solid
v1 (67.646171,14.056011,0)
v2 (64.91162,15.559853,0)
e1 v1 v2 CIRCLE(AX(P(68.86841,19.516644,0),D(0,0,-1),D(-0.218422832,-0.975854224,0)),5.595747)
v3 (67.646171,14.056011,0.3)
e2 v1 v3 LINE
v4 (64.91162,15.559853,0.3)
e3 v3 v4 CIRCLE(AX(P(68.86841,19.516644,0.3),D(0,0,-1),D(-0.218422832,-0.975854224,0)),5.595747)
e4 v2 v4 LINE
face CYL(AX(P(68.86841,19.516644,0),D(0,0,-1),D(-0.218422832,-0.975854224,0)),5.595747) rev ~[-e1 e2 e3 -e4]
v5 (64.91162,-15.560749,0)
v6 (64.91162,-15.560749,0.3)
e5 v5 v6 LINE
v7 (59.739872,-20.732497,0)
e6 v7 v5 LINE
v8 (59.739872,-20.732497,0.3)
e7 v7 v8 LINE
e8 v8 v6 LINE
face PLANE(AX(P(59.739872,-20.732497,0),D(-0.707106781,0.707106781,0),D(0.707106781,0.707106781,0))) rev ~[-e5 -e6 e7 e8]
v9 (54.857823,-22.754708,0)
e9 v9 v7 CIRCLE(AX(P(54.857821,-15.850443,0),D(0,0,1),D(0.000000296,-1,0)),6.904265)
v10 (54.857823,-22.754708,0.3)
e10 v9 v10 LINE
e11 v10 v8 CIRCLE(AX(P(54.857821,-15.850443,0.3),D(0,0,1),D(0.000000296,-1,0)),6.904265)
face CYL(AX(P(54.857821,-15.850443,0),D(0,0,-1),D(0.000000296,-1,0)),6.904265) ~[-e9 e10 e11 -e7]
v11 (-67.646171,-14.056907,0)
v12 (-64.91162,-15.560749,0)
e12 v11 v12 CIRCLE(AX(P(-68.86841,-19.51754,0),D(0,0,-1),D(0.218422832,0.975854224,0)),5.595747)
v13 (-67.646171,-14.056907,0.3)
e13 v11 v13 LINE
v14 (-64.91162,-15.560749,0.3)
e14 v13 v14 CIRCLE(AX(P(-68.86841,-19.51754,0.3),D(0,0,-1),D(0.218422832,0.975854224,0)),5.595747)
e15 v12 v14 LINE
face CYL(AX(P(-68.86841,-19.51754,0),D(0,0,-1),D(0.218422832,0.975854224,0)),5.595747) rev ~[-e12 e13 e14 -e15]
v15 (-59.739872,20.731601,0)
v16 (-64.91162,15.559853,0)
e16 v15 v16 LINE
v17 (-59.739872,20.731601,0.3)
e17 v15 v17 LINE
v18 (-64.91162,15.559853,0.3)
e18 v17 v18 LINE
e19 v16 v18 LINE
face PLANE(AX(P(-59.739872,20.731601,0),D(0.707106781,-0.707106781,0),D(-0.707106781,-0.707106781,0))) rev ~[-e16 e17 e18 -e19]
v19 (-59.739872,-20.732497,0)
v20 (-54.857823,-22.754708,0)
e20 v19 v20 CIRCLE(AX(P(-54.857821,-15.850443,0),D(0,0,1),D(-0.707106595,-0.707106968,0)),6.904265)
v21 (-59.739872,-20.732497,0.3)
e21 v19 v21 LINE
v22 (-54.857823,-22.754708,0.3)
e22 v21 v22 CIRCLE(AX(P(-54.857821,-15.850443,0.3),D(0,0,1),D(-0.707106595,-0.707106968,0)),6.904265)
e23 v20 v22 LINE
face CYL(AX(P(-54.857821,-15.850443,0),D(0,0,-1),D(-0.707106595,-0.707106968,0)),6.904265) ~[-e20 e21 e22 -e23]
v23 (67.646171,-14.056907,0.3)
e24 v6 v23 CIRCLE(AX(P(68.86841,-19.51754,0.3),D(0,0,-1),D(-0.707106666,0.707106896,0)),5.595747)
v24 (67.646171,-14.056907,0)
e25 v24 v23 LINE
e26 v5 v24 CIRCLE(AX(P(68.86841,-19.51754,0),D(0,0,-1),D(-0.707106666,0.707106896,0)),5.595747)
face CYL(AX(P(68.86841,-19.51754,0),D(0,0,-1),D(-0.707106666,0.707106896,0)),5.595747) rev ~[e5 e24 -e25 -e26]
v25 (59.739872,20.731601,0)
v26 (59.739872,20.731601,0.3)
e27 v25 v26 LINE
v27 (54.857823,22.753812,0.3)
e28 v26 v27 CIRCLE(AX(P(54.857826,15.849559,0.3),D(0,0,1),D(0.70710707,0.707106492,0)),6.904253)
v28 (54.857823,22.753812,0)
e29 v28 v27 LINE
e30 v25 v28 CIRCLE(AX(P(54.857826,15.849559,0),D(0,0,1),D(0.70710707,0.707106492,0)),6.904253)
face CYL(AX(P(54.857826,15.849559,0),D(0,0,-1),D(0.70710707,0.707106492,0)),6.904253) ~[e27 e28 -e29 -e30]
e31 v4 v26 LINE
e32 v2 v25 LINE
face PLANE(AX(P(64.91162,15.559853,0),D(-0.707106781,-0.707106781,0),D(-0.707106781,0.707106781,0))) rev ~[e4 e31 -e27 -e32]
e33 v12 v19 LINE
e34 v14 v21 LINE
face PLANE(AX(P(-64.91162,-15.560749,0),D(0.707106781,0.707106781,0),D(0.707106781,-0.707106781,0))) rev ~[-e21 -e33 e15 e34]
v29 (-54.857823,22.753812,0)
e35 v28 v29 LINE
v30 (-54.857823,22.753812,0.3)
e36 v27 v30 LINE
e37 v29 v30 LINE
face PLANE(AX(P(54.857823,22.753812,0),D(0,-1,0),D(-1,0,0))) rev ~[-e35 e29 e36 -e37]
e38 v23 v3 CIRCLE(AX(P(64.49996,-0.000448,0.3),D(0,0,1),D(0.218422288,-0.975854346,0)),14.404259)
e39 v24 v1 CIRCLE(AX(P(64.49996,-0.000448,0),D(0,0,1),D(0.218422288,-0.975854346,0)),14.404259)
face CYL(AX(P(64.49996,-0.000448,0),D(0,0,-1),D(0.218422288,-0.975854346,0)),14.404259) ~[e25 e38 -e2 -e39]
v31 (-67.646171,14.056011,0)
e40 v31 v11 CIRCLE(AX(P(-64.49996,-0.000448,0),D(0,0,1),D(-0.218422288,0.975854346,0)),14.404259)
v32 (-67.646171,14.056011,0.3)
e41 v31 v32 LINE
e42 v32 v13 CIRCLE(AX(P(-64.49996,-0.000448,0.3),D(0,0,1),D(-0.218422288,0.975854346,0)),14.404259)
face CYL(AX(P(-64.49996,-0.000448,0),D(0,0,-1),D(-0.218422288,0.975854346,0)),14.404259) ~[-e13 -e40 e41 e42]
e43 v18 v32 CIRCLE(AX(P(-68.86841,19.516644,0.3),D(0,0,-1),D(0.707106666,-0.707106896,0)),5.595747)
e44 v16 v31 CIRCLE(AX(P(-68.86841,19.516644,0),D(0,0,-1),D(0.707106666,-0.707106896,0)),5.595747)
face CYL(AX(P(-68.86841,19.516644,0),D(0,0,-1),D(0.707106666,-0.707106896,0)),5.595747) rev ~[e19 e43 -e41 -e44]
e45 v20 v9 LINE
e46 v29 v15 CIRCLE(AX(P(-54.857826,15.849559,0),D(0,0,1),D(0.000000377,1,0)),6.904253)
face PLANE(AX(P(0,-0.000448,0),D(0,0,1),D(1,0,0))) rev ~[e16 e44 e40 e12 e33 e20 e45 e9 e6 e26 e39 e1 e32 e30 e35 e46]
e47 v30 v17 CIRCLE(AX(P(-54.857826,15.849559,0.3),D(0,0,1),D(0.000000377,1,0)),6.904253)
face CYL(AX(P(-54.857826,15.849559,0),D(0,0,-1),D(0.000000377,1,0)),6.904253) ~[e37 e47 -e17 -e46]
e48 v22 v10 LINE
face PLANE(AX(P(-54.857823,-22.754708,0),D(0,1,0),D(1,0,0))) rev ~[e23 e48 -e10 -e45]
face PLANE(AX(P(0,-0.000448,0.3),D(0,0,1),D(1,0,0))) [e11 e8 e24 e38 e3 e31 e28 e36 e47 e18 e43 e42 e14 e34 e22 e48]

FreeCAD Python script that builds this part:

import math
import FreeCAD as App
import Part
import Sketcher

doc = App.newDocument("Part")
params = doc.addObject("Spreadsheet::Sheet", "Params")
for row, (alias, value) in enumerate([
    ("pad1_length", "0.3 mm"),
], start=1):
    params.set(f"A{row}", alias)
    params.set(f"B{row}", "=" + value)
    params.setAlias(f"B{row}", alias)

body = doc.addObject("PartDesign::Body", "Body")

# Sketch on XY plane
sketch1 = body.newObject("Sketcher::SketchObject", "Sketch")
sketch1.AttachmentSupport = (doc.getObject("XY_Plane"), [""])
sketch1.MapMode = "FlatFace"
sketch1.addGeometry(Part.ArcOfCircle(Part.Circle(App.Vector(54.857821, -15.850443, 0), App.Vector(0, 0, 1), 6.904265), math.radians(-89.999983), math.radians(-45.000015)), False)
sketch1.addGeometry(Part.LineSegment(App.Vector(59.739872, -20.732497, 0), App.Vector(64.91162, -15.560749, 0)), False)
sketch1.addGeometry(Part.ArcOfCircle(Part.Circle(App.Vector(68.86841, -19.51754, 0), App.Vector(0, 0, 1), 5.595747), math.radians(102.616415), math.radians(134.999991)), False)
sketch1.addGeometry(Part.ArcOfCircle(Part.Circle(App.Vector(64.49996, -0.000448, 0), App.Vector(0, 0, 1), 14.404259), math.radians(-77.383617), math.radians(77.383617)), False)
sketch1.addGeometry(Part.ArcOfCircle(Part.Circle(App.Vector(68.86841, 19.516644, 0), App.Vector(0, 0, 1), 5.595747), math.radians(-134.999991), math.radians(-102.616415)), False)
sketch1.addGeometry(Part.LineSegment(App.Vector(64.91162, 15.559853, 0), App.Vector(59.739872, 20.731601, 0)), False)
sketch1.addGeometry(Part.ArcOfCircle(Part.Circle(App.Vector(54.857826, 15.849559, 0), App.Vector(0, 0, 1), 6.904253), math.radians(44.999977), math.radians(90.000022)), False)
sketch1.addGeometry(Part.LineSegment(App.Vector(54.857823, 22.753812, 0), App.Vector(-54.857823, 22.753812, 0)), False)
sketch1.addGeometry(Part.ArcOfCircle(Part.Circle(App.Vector(-54.857826, 15.849559, 0), App.Vector(0, 0, 1), 6.904253), math.radians(89.999978), math.radians(135.000023)), False)
sketch1.addGeometry(Part.LineSegment(App.Vector(-59.739872, 20.731601, 0), App.Vector(-64.91162, 15.559853, 0)), False)
sketch1.addGeometry(Part.ArcOfCircle(Part.Circle(App.Vector(-68.86841, 19.516644, 0), App.Vector(0, 0, 1), 5.595747), math.radians(-77.383585), math.radians(-45.000009)), False)
sketch1.addGeometry(Part.ArcOfCircle(Part.Circle(App.Vector(-64.49996, -0.000448, 0), App.Vector(0, 0, 1), 14.404259), math.radians(102.616383), math.radians(257.383617)), False)
sketch1.addGeometry(Part.ArcOfCircle(Part.Circle(App.Vector(-68.86841, -19.51754, 0), App.Vector(0, 0, 1), 5.595747), math.radians(45.000009), math.radians(77.383585)), False)
sketch1.addGeometry(Part.LineSegment(App.Vector(-64.91162, -15.560749, 0), App.Vector(-59.739872, -20.732497, 0)), False)
sketch1.addGeometry(Part.ArcOfCircle(Part.Circle(App.Vector(-54.857821, -15.850443, 0), App.Vector(0, 0, 1), 6.904265), math.radians(-134.999985), math.radians(-90.000017)), False)
sketch1.addGeometry(Part.LineSegment(App.Vector(-54.857823, -22.754708, 0), App.Vector(54.857823, -22.754708, 0)), False)
sketch1.addConstraint(Sketcher.Constraint("Coincident", 0, 2, 1, 1))
sketch1.addConstraint(Sketcher.Constraint("Coincident", 1, 2, 2, 2))
sketch1.addConstraint(Sketcher.Constraint("Coincident", 2, 1, 3, 1))
sketch1.addConstraint(Sketcher.Constraint("Coincident", 3, 2, 4, 2))
sketch1.addConstraint(Sketcher.Constraint("Coincident", 4, 1, 5, 1))
sketch1.addConstraint(Sketcher.Constraint("Coincident", 5, 2, 6, 1))
sketch1.addConstraint(Sketcher.Constraint("Coincident", 6, 2, 7, 1))
sketch1.addConstraint(Sketcher.Constraint("Coincident", 7, 2, 8, 1))
sketch1.addConstraint(Sketcher.Constraint("Coincident", 8, 2, 9, 1))
sketch1.addConstraint(Sketcher.Constraint("Coincident", 9, 2, 10, 2))
sketch1.addConstraint(Sketcher.Constraint("Coincident", 10, 1, 11, 1))
sketch1.addConstraint(Sketcher.Constraint("Coincident", 11, 2, 12, 2))
sketch1.addConstraint(Sketcher.Constraint("Coincident", 12, 1, 13, 1))
sketch1.addConstraint(Sketcher.Constraint("Coincident", 13, 2, 14, 1))
sketch1.addConstraint(Sketcher.Constraint("Coincident", 14, 2, 15, 1))
sketch1.addConstraint(Sketcher.Constraint("Coincident", 15, 2, 0, 1))
sketch1.addConstraint(Sketcher.Constraint("Horizontal", 7))
sketch1.addConstraint(Sketcher.Constraint("Horizontal", 15))
sketch1.addConstraint(Sketcher.Constraint("DistanceY", 0, 3, 6, 3, 31.700002))
sketch1.addConstraint(Sketcher.Constraint("DistanceY", 0, 3, 8, 3, 31.700002))
sketch1.addConstraint(Sketcher.Constraint("DistanceY", 14, 3, 8, 3, 31.700002))
sketch1.addConstraint(Sketcher.Constraint("Radius", 3, 14.404259))
sketch1.addConstraint(Sketcher.Constraint("Radius", 11, 14.404259))
sketch1.addConstraint(Sketcher.Constraint("Radius", 0, 6.904265))
sketch1.addConstraint(Sketcher.Constraint("Radius", 2, 5.595747))
sketch1.addConstraint(Sketcher.Constraint("Radius", 4, 5.595747))
sketch1.addConstraint(Sketcher.Constraint("Radius", 6, 6.904253))
sketch1.addConstraint(Sketcher.Constraint("Radius", 10, 5.595747))
sketch1.addConstraint(Sketcher.Constraint("Radius", 12, 5.595747))
sketch1.addConstraint(Sketcher.Constraint("DistanceY", -1, 1, 5, 2, 20.731601))
sketch1.addConstraint(Sketcher.Constraint("DistanceY", -1, 1, 8, 2, 20.731601))
sketch1.addConstraint(Sketcher.Constraint("DistanceY", 2, 3, 6, 3, 35.367099))
sketch1.addConstraint(Sketcher.Constraint("DistanceY", 12, 3, 8, 3, 35.367099))
sketch1.addConstraint(Sketcher.Constraint("DistanceX", 0, 3, 1, 2, 10.053799))
sketch1.addConstraint(Sketcher.Constraint("DistanceY", 1, 2, 3, 3, 15.560301))
sketch1.addConstraint(Sketcher.Constraint("DistanceX", 0, 2, 2, 1, 7.906299))
sketch1.addConstraint(Sketcher.Constraint("DistanceY", 3, 3, 4, 1, 15.560301))
sketch1.addConstraint(Sketcher.Constraint("DistanceX", 5, 2, 3, 2, 7.906299))
sketch1.addConstraint(Sketcher.Constraint("DistanceY", 3, 2, 6, 2, 8.697801))
sketch1.addConstraint(Sketcher.Constraint("DistanceY", 11, 3, 9, 2, 15.560301))
sketch1.addConstraint(Sketcher.Constraint("DistanceX", 10, 1, 8, 2, 7.906299))
sketch1.addConstraint(Sketcher.Constraint("DistanceX", 12, 1, 14, 3, 10.053799))
sketch1.addConstraint(Sketcher.Constraint("DistanceY", 12, 1, 11, 3, 15.560301))
sketch1.addConstraint(Sketcher.Constraint("DistanceX", 11, 2, 13, 2, 7.906299))
sketch1.addConstraint(Sketcher.Constraint("DistanceY", 14, 2, 11, 2, 8.697801))
sketch1.addConstraint(Sketcher.Constraint("DistanceY", 15, 2, 2, 1, 8.697801))
sketch1.addConstraint(Sketcher.Constraint("DistanceX", 7, 2, 7, 1, 109.715646))
sketch1.addConstraint(Sketcher.Constraint("DistanceX", 15, 1, 15, 2, 109.715646))
sketch1.addConstraint(Sketcher.Constraint("DistanceX", -1, 1, 0, 3, 54.857821))
sketch1.addConstraint(Sketcher.Constraint("DistanceX", -1, 1, 2, 3, 68.86841))
sketch1.addConstraint(Sketcher.Constraint("DistanceY", 2, 3, -1, 1, 19.51754))
sketch1.addConstraint(Sketcher.Constraint("DistanceX", -1, 1, 4, 3, 68.86841))
sketch1.addConstraint(Sketcher.Constraint("DistanceX", 10, 3, -1, 1, 68.86841))
sketch1.addConstraint(Sketcher.Constraint("DistanceX", 11, 3, -1, 1, 64.49996))
sketch1.addConstraint(Sketcher.Constraint("DistanceY", 11, 3, -1, 1, 0.000448))
sketch1.addConstraint(Sketcher.Constraint("DistanceX", 8, 2, -1, 1, 59.739872))
sketch1.addConstraint(Sketcher.Constraint("DistanceX", 6, 2, 5, 2, 4.882049))
sketch1.addConstraint(Sketcher.Constraint("DistanceX", 13, 2, 14, 2, 4.882049))
pad1 = body.newObject("PartDesign::Pad", "Pad")
pad1.Profile = sketch1
pad1.setExpression("Length", "Params.pad1_length")

doc.recompute()
